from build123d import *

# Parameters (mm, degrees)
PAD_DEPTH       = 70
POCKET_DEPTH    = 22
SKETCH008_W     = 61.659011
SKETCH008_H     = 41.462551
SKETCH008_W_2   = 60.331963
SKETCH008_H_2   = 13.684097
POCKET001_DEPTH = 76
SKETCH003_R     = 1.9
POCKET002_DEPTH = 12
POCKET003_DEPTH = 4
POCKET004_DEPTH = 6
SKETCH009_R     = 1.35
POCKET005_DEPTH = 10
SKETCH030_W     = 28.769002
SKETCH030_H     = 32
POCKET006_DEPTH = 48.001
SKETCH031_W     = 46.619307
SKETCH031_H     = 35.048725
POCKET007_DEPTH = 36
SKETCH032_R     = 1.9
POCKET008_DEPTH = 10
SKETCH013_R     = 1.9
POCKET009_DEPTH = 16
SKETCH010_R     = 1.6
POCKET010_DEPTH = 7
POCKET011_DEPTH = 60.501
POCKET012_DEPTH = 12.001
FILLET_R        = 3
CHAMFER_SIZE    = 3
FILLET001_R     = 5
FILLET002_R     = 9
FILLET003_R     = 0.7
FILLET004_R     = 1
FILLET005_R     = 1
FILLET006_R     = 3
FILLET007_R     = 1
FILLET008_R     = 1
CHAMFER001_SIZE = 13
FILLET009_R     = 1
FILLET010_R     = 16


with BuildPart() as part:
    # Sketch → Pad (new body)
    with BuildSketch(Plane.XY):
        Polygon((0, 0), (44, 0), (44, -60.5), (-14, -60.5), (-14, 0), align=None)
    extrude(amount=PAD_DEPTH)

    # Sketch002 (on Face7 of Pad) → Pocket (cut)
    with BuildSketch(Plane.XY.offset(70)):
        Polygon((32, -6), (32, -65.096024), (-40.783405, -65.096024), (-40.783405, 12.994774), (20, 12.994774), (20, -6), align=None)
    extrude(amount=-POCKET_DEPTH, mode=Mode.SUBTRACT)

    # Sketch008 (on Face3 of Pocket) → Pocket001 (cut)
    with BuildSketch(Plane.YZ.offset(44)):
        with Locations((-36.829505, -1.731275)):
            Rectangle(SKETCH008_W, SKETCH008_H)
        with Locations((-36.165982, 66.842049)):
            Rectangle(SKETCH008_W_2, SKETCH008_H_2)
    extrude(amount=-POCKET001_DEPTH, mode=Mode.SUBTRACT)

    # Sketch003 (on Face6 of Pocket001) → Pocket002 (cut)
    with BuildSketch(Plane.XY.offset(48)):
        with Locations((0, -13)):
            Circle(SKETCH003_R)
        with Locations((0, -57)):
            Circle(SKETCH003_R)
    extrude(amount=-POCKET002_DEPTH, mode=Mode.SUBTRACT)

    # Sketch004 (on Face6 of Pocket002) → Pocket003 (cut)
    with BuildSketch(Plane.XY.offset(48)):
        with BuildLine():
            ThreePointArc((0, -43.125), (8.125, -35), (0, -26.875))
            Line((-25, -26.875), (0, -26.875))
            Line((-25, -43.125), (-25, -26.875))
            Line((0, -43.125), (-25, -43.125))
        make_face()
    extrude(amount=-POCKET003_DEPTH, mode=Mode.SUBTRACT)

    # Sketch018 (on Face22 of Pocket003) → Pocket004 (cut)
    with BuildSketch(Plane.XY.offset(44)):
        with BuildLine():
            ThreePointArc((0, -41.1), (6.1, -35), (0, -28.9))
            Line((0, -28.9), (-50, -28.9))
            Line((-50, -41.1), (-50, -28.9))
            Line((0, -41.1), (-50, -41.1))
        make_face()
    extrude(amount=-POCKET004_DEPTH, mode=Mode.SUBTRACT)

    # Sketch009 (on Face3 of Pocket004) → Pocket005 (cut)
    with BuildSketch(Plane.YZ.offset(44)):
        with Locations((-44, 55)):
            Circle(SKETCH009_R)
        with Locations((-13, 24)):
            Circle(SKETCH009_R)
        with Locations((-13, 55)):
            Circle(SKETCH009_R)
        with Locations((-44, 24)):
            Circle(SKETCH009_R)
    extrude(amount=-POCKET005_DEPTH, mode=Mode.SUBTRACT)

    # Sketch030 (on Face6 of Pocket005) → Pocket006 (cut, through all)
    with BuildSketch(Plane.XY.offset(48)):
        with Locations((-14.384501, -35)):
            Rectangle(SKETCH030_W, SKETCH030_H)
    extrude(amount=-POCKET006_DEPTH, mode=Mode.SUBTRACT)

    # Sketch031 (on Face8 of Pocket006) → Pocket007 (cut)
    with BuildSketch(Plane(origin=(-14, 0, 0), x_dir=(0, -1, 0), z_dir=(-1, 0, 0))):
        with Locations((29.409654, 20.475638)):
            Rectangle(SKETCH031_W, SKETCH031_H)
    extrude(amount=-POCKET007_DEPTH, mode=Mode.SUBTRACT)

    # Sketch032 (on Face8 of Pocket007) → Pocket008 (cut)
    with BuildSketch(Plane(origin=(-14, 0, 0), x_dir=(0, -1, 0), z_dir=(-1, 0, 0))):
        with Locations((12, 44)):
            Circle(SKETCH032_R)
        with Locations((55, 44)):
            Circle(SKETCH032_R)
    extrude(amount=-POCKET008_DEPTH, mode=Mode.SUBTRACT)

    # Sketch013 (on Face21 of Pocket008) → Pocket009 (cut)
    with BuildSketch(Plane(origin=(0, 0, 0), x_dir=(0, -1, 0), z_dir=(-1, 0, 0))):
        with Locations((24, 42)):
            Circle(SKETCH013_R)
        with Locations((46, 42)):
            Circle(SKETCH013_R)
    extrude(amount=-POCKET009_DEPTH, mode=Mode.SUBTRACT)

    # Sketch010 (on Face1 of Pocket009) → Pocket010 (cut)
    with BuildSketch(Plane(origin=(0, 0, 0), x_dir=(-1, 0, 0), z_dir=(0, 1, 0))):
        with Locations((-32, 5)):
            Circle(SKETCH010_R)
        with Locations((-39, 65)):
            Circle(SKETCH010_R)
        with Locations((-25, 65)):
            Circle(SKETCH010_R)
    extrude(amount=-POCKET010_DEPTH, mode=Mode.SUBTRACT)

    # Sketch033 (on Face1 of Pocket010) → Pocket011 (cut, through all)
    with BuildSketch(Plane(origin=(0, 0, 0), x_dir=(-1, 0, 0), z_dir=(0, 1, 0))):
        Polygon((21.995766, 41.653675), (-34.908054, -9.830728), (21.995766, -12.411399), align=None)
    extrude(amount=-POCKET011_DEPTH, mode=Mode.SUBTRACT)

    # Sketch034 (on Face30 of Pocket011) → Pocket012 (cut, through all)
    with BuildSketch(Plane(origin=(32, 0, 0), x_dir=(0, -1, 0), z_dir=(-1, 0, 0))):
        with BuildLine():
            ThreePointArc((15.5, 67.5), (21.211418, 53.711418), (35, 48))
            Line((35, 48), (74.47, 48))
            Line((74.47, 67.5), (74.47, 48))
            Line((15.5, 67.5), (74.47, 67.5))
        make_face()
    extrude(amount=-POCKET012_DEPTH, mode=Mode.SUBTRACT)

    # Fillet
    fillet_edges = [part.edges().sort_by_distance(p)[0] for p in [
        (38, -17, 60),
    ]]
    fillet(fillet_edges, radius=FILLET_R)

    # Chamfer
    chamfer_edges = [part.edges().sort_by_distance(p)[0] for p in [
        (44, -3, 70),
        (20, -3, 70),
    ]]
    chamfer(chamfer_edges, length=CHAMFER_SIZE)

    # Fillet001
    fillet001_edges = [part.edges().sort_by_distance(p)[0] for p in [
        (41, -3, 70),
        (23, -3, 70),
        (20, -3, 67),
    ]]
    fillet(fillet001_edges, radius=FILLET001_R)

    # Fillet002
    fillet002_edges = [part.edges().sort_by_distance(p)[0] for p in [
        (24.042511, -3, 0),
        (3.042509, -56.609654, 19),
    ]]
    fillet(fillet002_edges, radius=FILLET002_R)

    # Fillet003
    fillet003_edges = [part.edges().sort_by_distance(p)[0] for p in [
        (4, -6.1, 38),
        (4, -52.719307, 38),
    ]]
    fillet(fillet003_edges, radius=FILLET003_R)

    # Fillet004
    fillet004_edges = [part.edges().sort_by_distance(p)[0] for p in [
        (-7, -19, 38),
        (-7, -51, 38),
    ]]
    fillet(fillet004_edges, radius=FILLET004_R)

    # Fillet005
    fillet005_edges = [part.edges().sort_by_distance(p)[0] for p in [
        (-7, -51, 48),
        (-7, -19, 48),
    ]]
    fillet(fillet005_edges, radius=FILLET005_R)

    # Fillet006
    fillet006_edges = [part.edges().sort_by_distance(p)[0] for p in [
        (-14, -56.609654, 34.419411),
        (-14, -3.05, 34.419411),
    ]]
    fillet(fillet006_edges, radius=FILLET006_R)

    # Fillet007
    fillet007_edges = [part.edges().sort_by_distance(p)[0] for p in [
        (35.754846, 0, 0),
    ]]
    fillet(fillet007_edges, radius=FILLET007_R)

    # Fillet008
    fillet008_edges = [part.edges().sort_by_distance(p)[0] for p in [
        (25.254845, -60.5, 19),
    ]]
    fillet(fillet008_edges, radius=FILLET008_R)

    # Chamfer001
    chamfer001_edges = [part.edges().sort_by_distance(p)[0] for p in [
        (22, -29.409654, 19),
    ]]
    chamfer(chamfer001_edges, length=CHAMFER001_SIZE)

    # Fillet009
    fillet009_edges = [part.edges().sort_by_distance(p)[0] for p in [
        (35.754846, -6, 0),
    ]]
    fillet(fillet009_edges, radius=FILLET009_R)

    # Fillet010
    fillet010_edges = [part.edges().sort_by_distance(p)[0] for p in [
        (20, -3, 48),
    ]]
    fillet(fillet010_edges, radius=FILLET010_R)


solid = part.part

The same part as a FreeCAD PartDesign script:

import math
import FreeCAD as App
import Part
import Sketcher
Q = App.Units.Quantity


def edges_at(feature, points):
    """Names of the edges that pass closest to the given points."""
    edges = feature.Shape.Edges
    near = lambda p: min(range(len(edges)), key=lambda i: edges[i].distToShape(Part.Vertex(*p))[0])
    return sorted({f"Edge{near(p) + 1}" for p in points})


def add_polygon(sketch, points):
    """Adds a closed chain of lines whose ends are joined by coincident constraints."""
    first, n = sketch.GeometryCount, len(points)
    for a, b in zip(points, points[1:] + points[:1]):
        sketch.addGeometry(Part.LineSegment(App.Vector(*a, 0), App.Vector(*b, 0)), False)
    for i in range(n):
        sketch.addConstraint(Sketcher.Constraint("Coincident", first + i, 2, first + (i + 1) % n, 1))

doc = App.newDocument("Part")
params = doc.addObject("Spreadsheet::Sheet", "Params")
for row, (alias, value) in enumerate([
    ("sketch1_width", "58 mm"),
    ("sketch1_height", "60.5 mm"),
    ("pad1_length", "70 mm"),
    ("sketch2_width", "12 mm"),
    ("pocket1_length", "22 mm"),
    ("pocket2_length", "76 mm"),
    ("sketch4_diameter", "3.8 mm"),
    ("pocket3_length", "12 mm"),
    ("sketch5_width", "25 mm"),
    ("pocket4_length", "4 mm"),
    ("sketch6_radius", "6.1 mm"),
    ("sketch6_width", "50 mm"),
    ("pocket5_length", "6 mm"),
    ("sketch7_diameter", "2.7 mm"),
    ("pocket6_length", "10 mm"),
    ("sketch8_height", "32 mm"),
    ("pocket8_length", "36 mm"),
    ("sketch10_diameter", "3.8 mm"),
    ("pocket9_length", "10 mm"),
    ("sketch11_diameter", "3.8 mm"),
    ("pocket10_length", "16 mm"),
    ("sketch12_diameter", "3.2 mm"),
    ("pocket11_length", "7 mm"),
    ("sketch14_radius", "19.500001 mm"),
    ("sketch14_width", "39.47 mm"),
    ("fillet_radius", "3 mm"),
    ("chamfer_size", "3 mm"),
    ("fillet2_radius", "5 mm"),
    ("fillet3_radius", "9 mm"),
    ("fillet4_radius", "0.7 mm"),
    ("fillet5_radius", "1 mm"),
    ("fillet6_radius", "1 mm"),
    ("fillet7_radius", "3 mm"),
    ("fillet8_radius", "1 mm"),
    ("fillet9_radius", "1 mm"),
    ("chamfer2_size", "13 mm"),
    ("fillet10_radius", "1 mm"),
    ("fillet11_radius", "16 mm"),
], start=1):
    params.set(f"A{row}", alias)
    params.set(f"B{row}", "=" + value)
    params.setAlias(f"B{row}", alias)

body = doc.addObject("PartDesign::Body", "Body")

sketch1 = body.newObject("Sketcher::SketchObject", "Sketch")
sketch1.AttachmentSupport = (doc.getObject("XY_Plane"), [""])
sketch1.MapMode = "FlatFace"
add_polygon(sketch1, [(44, 0), (-14, 0), (-14, -60), (44, -60)])
sketch1.addConstraint(Sketcher.Constraint("Horizontal", 0))
sketch1.addConstraint(Sketcher.Constraint("Vertical", 1))
sketch1.addConstraint(Sketcher.Constraint("Horizontal", 2))
sketch1.addConstraint(Sketcher.Constraint("Vertical", 3))
sketch1.addConstraint(Sketcher.Constraint("PointOnObject", 0, 2, -1))
sketch1.addConstraint(Sketcher.Constraint("DistanceX", 0, 2, 0, 1, Q("58 mm")))
sketch1.addConstraint(Sketcher.Constraint("DistanceY", 1, 2, 1, 1, Q("60.5 mm")))
sketch1.addConstraint(Sketcher.Constraint("DistanceX", 0, 2, -1, 1, Q("14 mm")))
sketch1.setExpression("Constraints[9]", "Params.sketch1_width")
sketch1.setExpression("Constraints[10]", "Params.sketch1_height")
pad1 = body.newObject("PartDesign::Pad", "Pad")
pad1.Profile = sketch1
pad1.setExpression("Length", "Params.pad1_length")

sketch2 = body.newObject("Sketcher::SketchObject", "Sketch001")
sketch2.AttachmentSupport = (doc.getObject("XY_Plane"), [""])
sketch2.MapMode = "FlatFace"
sketch2.AttachmentOffset = App.Placement(App.Vector(0, 0, 70), App.Rotation())
add_polygon(sketch2, [(32, -65), (32, -6), (20, -6), (20, 13), (-41, 13), (-41, -65)])
sketch2.addConstraint(Sketcher.Constraint("Vertical", 0))
sketch2.addConstraint(Sketcher.Constraint("Horizontal", 1))
sketch2.addConstraint(Sketcher.Constraint("Vertical", 2))
sketch2.addConstraint(Sketcher.Constraint("Horizontal", 3))
sketch2.addConstraint(Sketcher.Constraint("Vertical", 4))
sketch2.addConstraint(Sketcher.Constraint("Horizontal", 5))
sketch2.addConstraint(Sketcher.Constraint("DistanceX", 1, 2, 1, 1, Q("12 mm")))
sketch2.addConstraint(Sketcher.Constraint("DistanceX", -1, 1, 0, 2, Q("32 mm")))
sketch2.addConstraint(Sketcher.Constraint("DistanceY", 0, 2, -1, 1, Q("6 mm")))
sketch2.addConstraint(Sketcher.Constraint("DistanceY", 4, 2, 4, 1, Q("78.090798 mm")))
sketch2.addConstraint(Sketcher.Constraint("DistanceX", 3, 2, 3, 1, Q("60.783405 mm")))
sketch2.addConstraint(Sketcher.Constraint("DistanceY", 0, 1, 0, 2, Q("59.096024 mm")))
sketch2.setExpression("Constraints[12]", "Params.sketch2_width")
pocket1 = body.newObject("PartDesign::Pocket", "Pocket")
pocket1.Profile = sketch2
pocket1.setExpression("Length", "Params.pocket1_length")

sketch3 = body.newObject("Sketcher::SketchObject", "Sketch002")
sketch3.AttachmentSupport = (doc.getObject("YZ_Plane"), [""])
sketch3.MapMode = "FlatFace"
sketch3.AttachmentOffset = App.Placement(App.Vector(0, 0, 44), App.Rotation())
add_polygon(sketch3, [(-68, 19), (-68, -22), (-6, -22), (-6, 19)])
add_polygon(sketch3, [(-66, 74), (-66, 60), (-6, 60), (-6, 74)])
sketch3.addConstraint(Sketcher.Constraint("Vertical", 0))
sketch3.addConstraint(Sketcher.Constraint("Horizontal", 1))
sketch3.addConstraint(Sketcher.Constraint("Vertical", 2))
sketch3.addConstraint(Sketcher.Constraint("Horizontal", 3))
sketch3.addConstraint(Sketcher.Constraint("Vertical", 4))
sketch3.addConstraint(Sketcher.Constraint("Horizontal", 5))
sketch3.addConstraint(Sketcher.Constraint("Vertical", 6))
sketch3.addConstraint(Sketcher.Constraint("Horizontal", 7))
sketch3.addConstraint(Sketcher.Constraint("Vertical", 2, 2, 5, 2))
sketch3.addConstraint(Sketcher.Constraint("DistanceX", 1, 2, -1, 1, Q("6 mm")))
sketch3.addConstraint(Sketcher.Constraint("DistanceY", -1, 1, 2, 2, Q("19 mm")))
sketch3.addConstraint(Sketcher.Constraint("DistanceY", -1, 1, 4, 2, Q("60 mm")))
sketch3.addConstraint(Sketcher.Constraint("DistanceX", 1, 1, 1, 2, Q("61.659011 mm")))
sketch3.addConstraint(Sketcher.Constraint("DistanceY", 0, 2, 0, 1, Q("41.462551 mm")))
sketch3.addConstraint(Sketcher.Constraint("DistanceX", 5, 1, 5, 2, Q("60.331963 mm")))
sketch3.addConstraint(Sketcher.Constraint("DistanceY", 4, 2, 4, 1, Q("13.684097 mm")))
pocket2 = body.newObject("PartDesign::Pocket", "Pocket001")
pocket2.Profile = sketch3
pocket2.setExpression("Length", "Params.pocket2_length")

sketch4 = body.newObject("Sketcher::SketchObject", "Sketch003")
sketch4.AttachmentSupport = (doc.getObject("XY_Plane"), [""])
sketch4.MapMode = "FlatFace"
sketch4.AttachmentOffset = App.Placement(App.Vector(0, 0, 48), App.Rotation())
sketch4.addGeometry(Part.Circle(App.Vector(0, -13, 0), App.Vector(0, 0, 1), 1.9), False)
sketch4.addGeometry(Part.Circle(App.Vector(0, -57, 0), App.Vector(0, 0, 1), 1.9), False)
sketch4.addConstraint(Sketcher.Constraint("Equal", 0, 1))
sketch4.addConstraint(Sketcher.Constraint("PointOnObject", 0, 3, -2))
sketch4.addConstraint(Sketcher.Constraint("PointOnObject", 1, 3, -2))
sketch4.addConstraint(Sketcher.Constraint("Diameter", 0, Q("3.8 mm")))
sketch4.addConstraint(Sketcher.Constraint("DistanceY", 0, 3, -1, 1, Q("13 mm")))
sketch4.addConstraint(Sketcher.Constraint("DistanceY", 1, 3, -1, 1, Q("57 mm")))
sketch4.setExpression("Constraints[3]", "Params.sketch4_diameter")
pocket3 = body.newObject("PartDesign::Pocket", "Pocket002")
pocket3.Profile = sketch4
pocket3.setExpression("Length", "Params.pocket3_length")

sketch5 = body.newObject("Sketcher::SketchObject", "Sketch004")
sketch5.AttachmentSupport = (doc.getObject("XY_Plane"), [""])
sketch5.MapMode = "FlatFace"
sketch5.AttachmentOffset = App.Placement(App.Vector(0, 0, 48), App.Rotation())
sketch5.addGeometry(Part.ArcOfCircle(Part.Circle(App.Vector(0, -35, 0), App.Vector(0, 0, 1), 8), math.radians(-90), math.radians(90)), False)
sketch5.addGeometry(Part.LineSegment(App.Vector(0, -27, 0), App.Vector(-25, -27, 0)), False)
sketch5.addGeometry(Part.LineSegment(App.Vector(-25, -27, 0), App.Vector(-25, -43, 0)), False)
sketch5.addGeometry(Part.LineSegment(App.Vector(-25, -43, 0), App.Vector(0, -43, 0)), False)
sketch5.addConstraint(Sketcher.Constraint("Tangent", 0, 2, 1, 1))
sketch5.addConstraint(Sketcher.Constraint("Coincident", 1, 2, 2, 1))
sketch5.addConstraint(Sketcher.Constraint("Coincident", 2, 2, 3, 1))
sketch5.addConstraint(Sketcher.Constraint("Tangent", 3, 2, 0, 1))
sketch5.addConstraint(Sketcher.Constraint("Horizontal", 1))
sketch5.addConstraint(Sketcher.Constraint("Vertical", 2))
sketch5.addConstraint(Sketcher.Constraint("Horizontal", 3))
sketch5.addConstraint(Sketcher.Constraint("PointOnObject", 0, 3, -2))
sketch5.addConstraint(Sketcher.Constraint("DistanceX", 1, 2, 1, 1, Q("25 mm")))
sketch5.addConstraint(Sketcher.Constraint("DistanceY", 0, 3, -1, 1, Q("35 mm")))
sketch5.addConstraint(Sketcher.Constraint("Radius", 0, Q("8.125 mm")))
sketch5.setExpression("Constraints[8]", "Params.sketch5_width")
pocket4 = body.newObject("PartDesign::Pocket", "Pocket003")
pocket4.Profile = sketch5
pocket4.setExpression("Length", "Params.pocket4_length")

sketch6 = body.newObject("Sketcher::SketchObject", "Sketch005")
sketch6.AttachmentSupport = (doc.getObject("XY_Plane"), [""])
sketch6.MapMode = "FlatFace"
sketch6.AttachmentOffset = App.Placement(App.Vector(0, 0, 44), App.Rotation())
sketch6.addGeometry(Part.ArcOfCircle(Part.Circle(App.Vector(0, -35, 0), App.Vector(0, 0, 1), 6), math.radians(-90), math.radians(90)), False)
sketch6.addGeometry(Part.LineSegment(App.Vector(0, -29, 0), App.Vector(-50, -29, 0)), False)
sketch6.addGeometry(Part.LineSegment(App.Vector(-50, -29, 0), App.Vector(-50, -41, 0)), False)
sketch6.addGeometry(Part.LineSegment(App.Vector(-50, -41, 0), App.Vector(0, -41, 0)), False)
sketch6.addConstraint(Sketcher.Constraint("Tangent", 0, 2, 1, 1))
sketch6.addConstraint(Sketcher.Constraint("Coincident", 1, 2, 2, 1))
sketch6.addConstraint(Sketcher.Constraint("Coincident", 2, 2, 3, 1))
sketch6.addConstraint(Sketcher.Constraint("Tangent", 3, 2, 0, 1))
sketch6.addConstraint(Sketcher.Constraint("Horizontal", 1))
sketch6.addConstraint(Sketcher.Constraint("Vertical", 2))
sketch6.addConstraint(Sketcher.Constraint("Horizontal", 3))
sketch6.addConstraint(Sketcher.Constraint("PointOnObject", 0, 3, -2))
sketch6.addConstraint(Sketcher.Constraint("Radius", 0, Q("6.1 mm")))
sketch6.addConstraint(Sketcher.Constraint("DistanceX", 1, 2, 1, 1, Q("50 mm")))
sketch6.addConstraint(Sketcher.Constraint("DistanceY", 0, 3, -1, 1, Q("35 mm")))
sketch6.setExpression("Constraints[8]", "Params.sketch6_radius")
sketch6.setExpression("Constraints[9]", "Params.sketch6_width")
pocket5 = body.newObject("PartDesign::Pocket", "Pocket004")
pocket5.Profile = sketch6
pocket5.setExpression("Length", "Params.pocket5_length")

sketch7 = body.newObject("Sketcher::SketchObject", "Sketch006")
sketch7.AttachmentSupport = (doc.getObject("YZ_Plane"), [""])
sketch7.MapMode = "FlatFace"
sketch7.AttachmentOffset = App.Placement(App.Vector(0, 0, 44), App.Rotation())
sketch7.addGeometry(Part.Circle(App.Vector(-44, 55, 0), App.Vector(0, 0, 1), 1.4), False)
sketch7.addGeometry(Part.Circle(App.Vector(-13, 24, 0), App.Vector(0, 0, 1), 1.4), False)
sketch7.addGeometry(Part.Circle(App.Vector(-13, 55, 0), App.Vector(0, 0, 1), 1.4), False)
sketch7.addGeometry(Part.Circle(App.Vector(-44, 24, 0), App.Vector(0, 0, 1), 1.4), False)
sketch7.addConstraint(Sketcher.Constraint("Equal", 0, 1))
sketch7.addConstraint(Sketcher.Constraint("Equal", 1, 2))
sketch7.addConstraint(Sketcher.Constraint("Equal", 2, 3))
sketch7.addConstraint(Sketcher.Constraint("Horizontal", 0, 3, 2, 3))
sketch7.addConstraint(Sketcher.Constraint("Horizontal", 1, 3, 3, 3))
sketch7.addConstraint(Sketcher.Constraint("Vertical", 1, 3, 2, 3))
sketch7.addConstraint(Sketcher.Constraint("Vertical", 0, 3, 3, 3))
sketch7.addConstraint(Sketcher.Constraint("Diameter", 0, Q("2.7 mm")))
sketch7.addConstraint(Sketcher.Constraint("DistanceX", 0, 3, -1, 1, Q("44 mm")))
sketch7.addConstraint(Sketcher.Constraint("DistanceY", -1, 1, 0, 3, Q("55 mm")))
sketch7.addConstraint(Sketcher.Constraint("DistanceX", 1, 3, -1, 1, Q("13 mm")))
sketch7.addConstraint(Sketcher.Constraint("DistanceY", -1, 1, 1, 3, Q("24 mm")))
sketch7.setExpression("Constraints[7]", "Params.sketch7_diameter")
pocket6 = body.newObject("PartDesign::Pocket", "Pocket005")
pocket6.Profile = sketch7
pocket6.setExpression("Length", "Params.pocket6_length")

sketch8 = body.newObject("Sketcher::SketchObject", "Sketch007")
sketch8.AttachmentSupport = (doc.getObject("XY_Plane"), [""])
sketch8.MapMode = "FlatFace"
sketch8.AttachmentOffset = App.Placement(App.Vector(0, 0, 48), App.Rotation())
add_polygon(sketch8, [(-29, -19), (-29, -51), (0, -51), (0, -19)])
sketch8.addConstraint(Sketcher.Constraint("Vertical", 0))
sketch8.addConstraint(Sketcher.Constraint("Horizontal", 1))
sketch8.addConstraint(Sketcher.Constraint("Vertical", 2))
sketch8.addConstraint(Sketcher.Constraint("Horizontal", 3))
sketch8.addConstraint(Sketcher.Constraint("PointOnObject", 1, 2, -2))
sketch8.addConstraint(Sketcher.Constraint("DistanceY", 0, 2, 0, 1, Q("32 mm")))
sketch8.addConstraint(Sketcher.Constraint("DistanceY", 0, 2, -1, 1, Q("51 mm")))
sketch8.addConstraint(Sketcher.Constraint("DistanceX", 1, 1, 1, 2, Q("28.769002 mm")))
sketch8.setExpression("Constraints[9]", "Params.sketch8_height")
pocket7 = body.newObject("PartDesign::Pocket", "Pocket006")
pocket7.Profile = sketch8
pocket7.Type = "ThroughAll"

sketch9 = body.newObject("Sketcher::SketchObject", "Sketch008")
sketch9.AttachmentSupport = (doc.getObject("YZ_Plane"), [""])
sketch9.MapMode = "FlatFace"
sketch9.AttachmentOffset = App.Placement(App.Vector(0, 0, -14), App.Rotation())
add_polygon(sketch9, [(-6, 38), (-6, 3), (-53, 3), (-53, 38)])
sketch9.addConstraint(Sketcher.Constraint("Vertical", 0))
sketch9.addConstraint(Sketcher.Constraint("Horizontal", 1))
sketch9.addConstraint(Sketcher.Constraint("Vertical", 2))
sketch9.addConstraint(Sketcher.Constraint("Horizontal", 3))
sketch9.addConstraint(Sketcher.Constraint("DistanceY", -1, 1, 2, 2, Q("38 mm")))
sketch9.addConstraint(Sketcher.Constraint("DistanceX", 0, 2, -1, 1, Q("6.100001 mm")))
sketch9.addConstraint(Sketcher.Constraint("DistanceX", 1, 2, 1, 1, Q("46.619307 mm")))
sketch9.addConstraint(Sketcher.Constraint("DistanceY", 0, 2, 0, 1, Q("35.048725 mm")))
pocket8 = body.newObject("PartDesign::Pocket", "Pocket007")
pocket8.Profile = sketch9
pocket8.setExpression("Length", "Params.pocket8_length")
pocket8.Reversed = True

sketch10 = body.newObject("Sketcher::SketchObject", "Sketch009")
sketch10.AttachmentSupport = (doc.getObject("YZ_Plane"), [""])
sketch10.MapMode = "FlatFace"
sketch10.AttachmentOffset = App.Placement(App.Vector(0, 0, -14), App.Rotation())
sketch10.addGeometry(Part.Circle(App.Vector(-12, 44, 0), App.Vector(0, 0, 1), 1.9), False)
sketch10.addGeometry(Part.Circle(App.Vector(-55, 44, 0), App.Vector(0, 0, 1), 1.9), False)
sketch10.addConstraint(Sketcher.Constraint("Equal", 0, 1))
sketch10.addConstraint(Sketcher.Constraint("Horizontal", 0, 3, 1, 3))
sketch10.addConstraint(Sketcher.Constraint("Diameter", 0, Q("3.8 mm")))
sketch10.addConstraint(Sketcher.Constraint("DistanceX", 0, 3, -1, 1, Q("12 mm")))
sketch10.addConstraint(Sketcher.Constraint("DistanceY", -1, 1, 0, 3, Q("44 mm")))
sketch10.addConstraint(Sketcher.Constraint("DistanceX", 1, 3, -1, 1, Q("55 mm")))
sketch10.setExpression("Constraints[2]", "Params.sketch10_diameter")
pocket9 = body.newObject("PartDesign::Pocket", "Pocket008")
pocket9.Profile = sketch10
pocket9.setExpression("Length", "Params.pocket9_length")
pocket9.Reversed = True

sketch11 = body.newObject("Sketcher::SketchObject", "Sketch010")
sketch11.AttachmentSupport = (doc.getObject("YZ_Plane"), [""])
sketch11.MapMode = "FlatFace"
sketch11.addGeometry(Part.Circle(App.Vector(-24, 42, 0), App.Vector(0, 0, 1), 1.9), False)
sketch11.addGeometry(Part.Circle(App.Vector(-46, 42, 0), App.Vector(0, 0, 1), 1.9), False)
sketch11.addConstraint(Sketcher.Constraint("Equal", 0, 1))
sketch11.addConstraint(Sketcher.Constraint("Horizontal", 0, 3, 1, 3))
sketch11.addConstraint(Sketcher.Constraint("Diameter", 0, Q("3.8 mm")))
sketch11.addConstraint(Sketcher.Constraint("DistanceX", 0, 3, -1, 1, Q("24 mm")))
sketch11.addConstraint(Sketcher.Constraint("DistanceY", -1, 1, 0, 3, Q("42 mm")))
sketch11.addConstraint(Sketcher.Constraint("DistanceX", 1, 3, -1, 1, Q("46 mm")))
sketch11.setExpression("Constraints[2]", "Params.sketch11_diameter")
pocket10 = body.newObject("PartDesign::Pocket", "Pocket009")
pocket10.Profile = sketch11
pocket10.setExpression("Length", "Params.pocket10_length")
pocket10.Reversed = True

sketch12 = body.newObject("Sketcher::SketchObject", "Sketch011")
sketch12.AttachmentSupport = (doc.getObject("XZ_Plane"), [""])
sketch12.MapMode = "FlatFace"
sketch12.addGeometry(Part.Circle(App.Vector(32, 5, 0), App.Vector(0, 0, 1), 1.6), False)
sketch12.addGeometry(Part.Circle(App.Vector(39, 65, 0), App.Vector(0, 0, 1), 1.6), False)
sketch12.addGeometry(Part.Circle(App.Vector(25, 65, 0), App.Vector(0, 0, 1), 1.6), False)
sketch12.addConstraint(Sketcher.Constraint("Equal", 0, 1))
sketch12.addConstraint(Sketcher.Constraint("Equal", 1, 2))
sketch12.addConstraint(Sketcher.Constraint("Horizontal", 1, 3, 2, 3))
sketch12.addConstraint(Sketcher.Constraint("Diameter", 0, Q("3.2 mm")))
sketch12.addConstraint(Sketcher.Constraint("DistanceX", -1, 1, 0, 3, Q("32 mm")))
sketch12.addConstraint(Sketcher.Constraint("DistanceY", -1, 1, 0, 3, Q("5 mm")))
sketch12.addConstraint(Sketcher.Constraint("DistanceX", -1, 1, 1, 3, Q("39 mm")))
sketch12.addConstraint(Sketcher.Constraint("DistanceY", -1, 1, 1, 3, Q("65 mm")))
sketch12.addConstraint(Sketcher.Constraint("DistanceX", -1, 1, 2, 3, Q("25 mm")))
sketch12.setExpression("Constraints[3]", "Params.sketch12_diameter")
pocket11 = body.newObject("PartDesign::Pocket", "Pocket010")
pocket11.Profile = sketch12
pocket11.setExpression("Length", "Params.pocket11_length")
pocket11.Reversed = True

sketch13 = body.newObject("Sketcher::SketchObject", "Sketch012")
sketch13.AttachmentSupport = (doc.getObject("XZ_Plane"), [""])
sketch13.MapMode = "FlatFace"
add_polygon(sketch13, [(-22, 42), (35, -10), (-22, -12)])
sketch13.addConstraint(Sketcher.Constraint("Vertical", 2))
sketch13.addConstraint(Sketcher.Constraint("DistanceY", 1, 2, -1, 1, Q("12.411399 mm")))
sketch13.addConstraint(Sketcher.Constraint("Distance", 0, Q("76.73779 mm")))
sketch13.addConstraint(Sketcher.Constraint("Distance", 1, Q("56.962309 mm")))
sketch13.addConstraint(Sketcher.Constraint("DistanceY", 2, 1, 2, 2, Q("54.065074 mm")))
sketch13.addConstraint(Sketcher.Constraint("DistanceX", -1, 1, 0, 2, Q("34.908054 mm")))
pocket12 = body.newObject("PartDesign::Pocket", "Pocket011")
pocket12.Profile = sketch13
pocket12.Type = "ThroughAll"
pocket12.Reversed = True

sketch14 = body.newObject("Sketcher::SketchObject", "Sketch013")
sketch14.AttachmentSupport = (doc.getObject("YZ_Plane"), [""])
sketch14.MapMode = "FlatFace"
sketch14.AttachmentOffset = App.Placement(App.Vector(0, 0, 32), App.Rotation())
sketch14.addGeometry(Part.ArcOfCircle(Part.Circle(App.Vector(-35, 68, 0), App.Vector(0, 0, 1), 20), math.radians(-90), math.radians(0)), False)
sketch14.addGeometry(Part.LineSegment(App.Vector(-35, 48, 0), App.Vector(-74, 48, 0)), False)
sketch14.addGeometry(Part.LineSegment(App.Vector(-74, 48, 0), App.Vector(-74, 68, 0)), False)
sketch14.addGeometry(Part.LineSegment(App.Vector(-74, 68, 0), App.Vector(-16, 68, 0)), False)
sketch14.addConstraint(Sketcher.Constraint("Tangent", 0, 1, 1, 1))
sketch14.addConstraint(Sketcher.Constraint("Coincident", 1, 2, 2, 1))
sketch14.addConstraint(Sketcher.Constraint("Coincident", 2, 2, 3, 1))
sketch14.addConstraint(Sketcher.Constraint("Coincident", 3, 2, 0, 2))
sketch14.addConstraint(Sketcher.Constraint("Horizontal", 1))
sketch14.addConstraint(Sketcher.Constraint("Vertical", 2))
sketch14.addConstraint(Sketcher.Constraint("Horizontal", 3))
sketch14.addConstraint(Sketcher.Constraint("Horizontal", 0, 3, 2, 2))
sketch14.addConstraint(Sketcher.Constraint("Radius", 0, Q("19.500001 mm")))
sketch14.addConstraint(Sketcher.Constraint("DistanceX", 0, 3, -1, 1, Q("35.000001 mm")))
sketch14.addConstraint(Sketcher.Constraint("DistanceY", -1, 1, 0, 1, Q("48 mm")))
sketch14.addConstraint(Sketcher.Constraint("DistanceX", 1, 2, 1, 1, Q("39.47 mm")))
sketch14.setExpression("Constraints[8]", "Params.sketch14_radius")
sketch14.setExpression("Constraints[11]", "Params.sketch14_width")
pocket13 = body.newObject("PartDesign::Pocket", "Pocket012")
pocket13.Profile = sketch14
pocket13.Type = "ThroughAll"
pocket13.Reversed = True
doc.recompute()

fillet = body.newObject("PartDesign::Fillet", "Fillet")
fillet.Base = (pocket13, edges_at(pocket13, [(38, -17, 60)]))
fillet.setExpression("Radius", "Params.fillet_radius")
doc.recompute()

chamfer = body.newObject("PartDesign::Chamfer", "Chamfer")
chamfer.Base = (fillet, edges_at(fillet, [(44, -3, 70), (20, -3, 70)]))
chamfer.setExpression("Size", "Params.chamfer_size")
doc.recompute()

fillet2 = body.newObject("PartDesign::Fillet", "Fillet001")
fillet2.Base = (chamfer, edges_at(chamfer, [(41, -3, 70), (23, -3, 70), (20, -3, 67)]))
fillet2.setExpression("Radius", "Params.fillet2_radius")
doc.recompute()

fillet3 = body.newObject("PartDesign::Fillet", "Fillet002")
fillet3.Base = (fillet2, edges_at(fillet2, [(24.043, -3, 0), (3.043, -56.61, 19)]))
fillet3.setExpression("Radius", "Params.fillet3_radius")
doc.recompute()

fillet4 = body.newObject("PartDesign::Fillet", "Fillet003")
fillet4.Base = (fillet3, edges_at(fillet3, [(4, -6.1, 38), (4, -52.719, 38)]))
fillet4.setExpression("Radius", "Params.fillet4_radius")
doc.recompute()

fillet5 = body.newObject("PartDesign::Fillet", "Fillet004")
fillet5.Base = (fillet4, edges_at(fillet4, [(-7, -19, 38), (-7, -51, 38)]))
fillet5.setExpression("Radius", "Params.fillet5_radius")
doc.recompute()

fillet6 = body.newObject("PartDesign::Fillet", "Fillet005")
fillet6.Base = (fillet5, edges_at(fillet5, [(-7, -51, 48), (-7, -19, 48)]))
fillet6.setExpression("Radius", "Params.fillet6_radius")
doc.recompute()

fillet7 = body.newObject("PartDesign::Fillet", "Fillet006")
fillet7.Base = (fillet6, edges_at(fillet6, [(-14, -56.61, 34.419), (-14, -3.05, 34.419)]))
fillet7.setExpression("Radius", "Params.fillet7_radius")
doc.recompute()

fillet8 = body.newObject("PartDesign::Fillet", "Fillet007")
fillet8.Base = (fillet7, edges_at(fillet7, [(35.755, 0, 0)]))
fillet8.setExpression("Radius", "Params.fillet8_radius")
doc.recompute()

fillet9 = body.newObject("PartDesign::Fillet", "Fillet008")
fillet9.Base = (fillet8, edges_at(fillet8, [(25.255, -60.5, 19)]))
fillet9.setExpression("Radius", "Params.fillet9_radius")
doc.recompute()

chamfer2 = body.newObject("PartDesign::Chamfer", "Chamfer001")
chamfer2.Base = (fillet9, edges_at(fillet9, [(22, -29.41, 19)]))
chamfer2.setExpression("Size", "Params.chamfer2_size")
doc.recompute()

fillet10 = body.newObject("PartDesign::Fillet", "Fillet009")
fillet10.Base = (chamfer2, edges_at(chamfer2, [(35.755, -6, 0)]))
fillet10.setExpression("Radius", "Params.fillet10_radius")
doc.recompute()

fillet11 = body.newObject("PartDesign::Fillet", "Fillet010")
fillet11.Base = (fillet10, edges_at(fillet10, [(20, -3, 48)]))
fillet11.setExpression("Radius", "Params.fillet11_radius")

doc.recompute()
